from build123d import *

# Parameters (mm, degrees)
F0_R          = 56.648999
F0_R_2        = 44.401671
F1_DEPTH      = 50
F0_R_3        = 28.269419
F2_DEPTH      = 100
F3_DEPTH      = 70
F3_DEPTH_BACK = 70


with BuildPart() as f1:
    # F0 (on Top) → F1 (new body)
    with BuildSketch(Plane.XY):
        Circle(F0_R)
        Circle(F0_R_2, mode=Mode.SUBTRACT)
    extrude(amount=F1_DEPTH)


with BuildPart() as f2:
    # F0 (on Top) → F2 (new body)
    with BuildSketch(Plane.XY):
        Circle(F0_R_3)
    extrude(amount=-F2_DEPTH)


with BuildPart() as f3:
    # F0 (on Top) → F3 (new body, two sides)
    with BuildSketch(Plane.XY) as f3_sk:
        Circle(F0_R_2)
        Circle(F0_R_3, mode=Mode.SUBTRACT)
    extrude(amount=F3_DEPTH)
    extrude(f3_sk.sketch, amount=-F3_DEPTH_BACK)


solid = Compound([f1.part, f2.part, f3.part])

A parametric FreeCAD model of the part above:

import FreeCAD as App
import Part
import Sketcher

V = App.Vector
Q = App.Units.Quantity

doc = App.newDocument("Part")
body = doc.addObject("PartDesign::Body", "Body")

sketch1 = body.newObject("Sketcher::SketchObject", "Sketch")
sketch1.AttachmentSupport = (doc.getObject("XY_Plane"), [""])
sketch1.MapMode = "FlatFace"
sketch1.addGeometry(Part.Circle(V(0, 0, 0), V(0, 0, 1), 57), False)
sketch1.addGeometry(Part.Circle(V(0, 0, 0), V(0, 0, 1), 44), False)
sketch1.addConstraint(Sketcher.Constraint("Coincident", 0, 3, -1, 1))
sketch1.addConstraint(Sketcher.Constraint("Coincident", 1, 3, -1, 1))
sketch1.addConstraint(Sketcher.Constraint("Diameter", 0, Q("113.297998 mm")))
sketch1.addConstraint(Sketcher.Constraint("Diameter", 1, Q("88.803342 mm")))
pad1 = body.newObject("PartDesign::Pad", "Pad")
pad1.Profile = sketch1
pad1.Length = 50
body2 = doc.addObject("PartDesign::Body", "Body001")

sketch2 = body2.newObject("Sketcher::SketchObject", "Sketch001")
sketch2.AttachmentSupport = (doc.getObject("XY_Plane001"), [""])
sketch2.MapMode = "FlatFace"
sketch2.addGeometry(Part.Circle(V(0, 0, 0), V(0, 0, 1), 28), False)
sketch2.addConstraint(Sketcher.Constraint("Coincident", 0, 3, -1, 1))
sketch2.addConstraint(Sketcher.Constraint("Diameter", 0, Q("56.538838 mm")))
pad2 = body2.newObject("PartDesign::Pad", "Pad001")
pad2.Profile = sketch2
pad2.Length = 100
pad2.Reversed = True
body3 = doc.addObject("PartDesign::Body", "Body002")

sketch3 = body3.newObject("Sketcher::SketchObject", "Sketch002")
sketch3.AttachmentSupport = (doc.getObject("XY_Plane002"), [""])
sketch3.MapMode = "FlatFace"
sketch3.addGeometry(Part.Circle(V(0, 0, 0), V(0, 0, 1), 44), False)
sketch3.addGeometry(Part.Circle(V(0, 0, 0), V(0, 0, 1), 28), False)
sketch3.addConstraint(Sketcher.Constraint("Coincident", 0, 3, -1, 1))
sketch3.addConstraint(Sketcher.Constraint("Coincident", 1, 3, -1, 1))
sketch3.addConstraint(Sketcher.Constraint("Diameter", 0, Q("88.803342 mm")))
sketch3.addConstraint(Sketcher.Constraint("Diameter", 1, Q("56.538838 mm")))
pad3 = body3.newObject("PartDesign::Pad", "Pad002")
pad3.Profile = sketch3
pad3.Type = "TwoLengths"
pad3.Length = 70
pad3.Length2 = 70

doc.recompute()
